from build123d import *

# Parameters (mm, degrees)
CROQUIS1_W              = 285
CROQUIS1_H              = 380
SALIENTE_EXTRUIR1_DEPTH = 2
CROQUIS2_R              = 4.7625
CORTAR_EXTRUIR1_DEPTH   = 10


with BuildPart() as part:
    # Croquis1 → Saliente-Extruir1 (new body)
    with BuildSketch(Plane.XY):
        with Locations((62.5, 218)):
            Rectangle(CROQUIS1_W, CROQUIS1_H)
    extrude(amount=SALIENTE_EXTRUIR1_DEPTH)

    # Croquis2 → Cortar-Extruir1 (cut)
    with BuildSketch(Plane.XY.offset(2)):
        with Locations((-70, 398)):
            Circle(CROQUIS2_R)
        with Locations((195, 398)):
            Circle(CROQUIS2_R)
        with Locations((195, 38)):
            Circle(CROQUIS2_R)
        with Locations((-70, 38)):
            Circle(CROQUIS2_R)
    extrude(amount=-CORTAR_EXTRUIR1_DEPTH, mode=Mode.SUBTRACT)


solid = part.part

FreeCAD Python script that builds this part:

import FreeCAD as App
import Part
import Sketcher
Q = App.Units.Quantity


def add_polygon(sketch, points):
    """Adds a closed chain of lines whose ends are joined by coincident constraints."""
    first, n = sketch.GeometryCount, len(points)
    for a, b in zip(points, points[1:] + points[:1]):
        sketch.addGeometry(Part.LineSegment(App.Vector(*a, 0), App.Vector(*b, 0)), False)
    for i in range(n):
        sketch.addConstraint(Sketcher.Constraint("Coincident", first + i, 2, first + (i + 1) % n, 1))

doc = App.newDocument("Part")
body = doc.addObject("PartDesign::Body", "Body")

sketch1 = body.newObject("Sketcher::SketchObject", "Sketch")
sketch1.AttachmentSupport = (doc.getObject("XY_Plane"), [""])
sketch1.MapMode = "FlatFace"
add_polygon(sketch1, [(-80, 408), (-80, 28), (205, 28), (205, 408)])
sketch1.addConstraint([
    Sketcher.Constraint("Vertical", 0),
    Sketcher.Constraint("Horizontal", 1),
    Sketcher.Constraint("Vertical", 2),
    Sketcher.Constraint("Horizontal", 3),
    Sketcher.Constraint("DistanceX", 1, 1, 1, 2, Q("285 mm")),
    Sketcher.Constraint("DistanceY", 0, 2, 0, 1, Q("380 mm")),
    Sketcher.Constraint("DistanceX", 0, 2, -1, 1, Q("80 mm")),
    Sketcher.Constraint("DistanceY", -1, 1, 0, 2, Q("28 mm")),
])
pad1 = body.newObject("PartDesign::Pad", "Pad")
pad1.Profile = sketch1
pad1.Length = 2

sketch2 = body.newObject("Sketcher::SketchObject", "Sketch001")
sketch2.AttachmentSupport = (doc.getObject("XY_Plane"), [""])
sketch2.MapMode = "FlatFace"
sketch2.AttachmentOffset = App.Placement(App.Vector(0, 0, 2), App.Rotation())
sketch2.addGeometry([
    Part.Circle(App.Vector(-70, 398, 0), App.Vector(0, 0, 1), 4.8),
    Part.Circle(App.Vector(195, 398, 0), App.Vector(0, 0, 1), 4.8),
    Part.Circle(App.Vector(195, 38, 0), App.Vector(0, 0, 1), 4.8),
    Part.Circle(App.Vector(-70, 38, 0), App.Vector(0, 0, 1), 4.8),
], False)
sketch2.addConstraint([
    Sketcher.Constraint("Equal", 0, 1),
    Sketcher.Constraint("Equal", 1, 2),
    Sketcher.Constraint("Equal", 2, 3),
    Sketcher.Constraint("Horizontal", 0, 3, 1, 3),
    Sketcher.Constraint("Horizontal", 2, 3, 3, 3),
    Sketcher.Constraint("Vertical", 1, 3, 2, 3),
    Sketcher.Constraint("Vertical", 0, 3, 3, 3),
    Sketcher.Constraint("Diameter", 0, Q("9.525 mm")),
    Sketcher.Constraint("DistanceX", 0, 3, -1, 1, Q("70 mm")),
    Sketcher.Constraint("DistanceY", -1, 1, 0, 3, Q("398 mm")),
    Sketcher.Constraint("DistanceX", -1, 1, 1, 3, Q("195 mm")),
    Sketcher.Constraint("DistanceY", -1, 1, 2, 3, Q("38 mm")),
])
pocket1 = body.newObject("PartDesign::Pocket", "Pocket")
pocket1.Profile = sketch2
pocket1.Length = 10

doc.recompute()
